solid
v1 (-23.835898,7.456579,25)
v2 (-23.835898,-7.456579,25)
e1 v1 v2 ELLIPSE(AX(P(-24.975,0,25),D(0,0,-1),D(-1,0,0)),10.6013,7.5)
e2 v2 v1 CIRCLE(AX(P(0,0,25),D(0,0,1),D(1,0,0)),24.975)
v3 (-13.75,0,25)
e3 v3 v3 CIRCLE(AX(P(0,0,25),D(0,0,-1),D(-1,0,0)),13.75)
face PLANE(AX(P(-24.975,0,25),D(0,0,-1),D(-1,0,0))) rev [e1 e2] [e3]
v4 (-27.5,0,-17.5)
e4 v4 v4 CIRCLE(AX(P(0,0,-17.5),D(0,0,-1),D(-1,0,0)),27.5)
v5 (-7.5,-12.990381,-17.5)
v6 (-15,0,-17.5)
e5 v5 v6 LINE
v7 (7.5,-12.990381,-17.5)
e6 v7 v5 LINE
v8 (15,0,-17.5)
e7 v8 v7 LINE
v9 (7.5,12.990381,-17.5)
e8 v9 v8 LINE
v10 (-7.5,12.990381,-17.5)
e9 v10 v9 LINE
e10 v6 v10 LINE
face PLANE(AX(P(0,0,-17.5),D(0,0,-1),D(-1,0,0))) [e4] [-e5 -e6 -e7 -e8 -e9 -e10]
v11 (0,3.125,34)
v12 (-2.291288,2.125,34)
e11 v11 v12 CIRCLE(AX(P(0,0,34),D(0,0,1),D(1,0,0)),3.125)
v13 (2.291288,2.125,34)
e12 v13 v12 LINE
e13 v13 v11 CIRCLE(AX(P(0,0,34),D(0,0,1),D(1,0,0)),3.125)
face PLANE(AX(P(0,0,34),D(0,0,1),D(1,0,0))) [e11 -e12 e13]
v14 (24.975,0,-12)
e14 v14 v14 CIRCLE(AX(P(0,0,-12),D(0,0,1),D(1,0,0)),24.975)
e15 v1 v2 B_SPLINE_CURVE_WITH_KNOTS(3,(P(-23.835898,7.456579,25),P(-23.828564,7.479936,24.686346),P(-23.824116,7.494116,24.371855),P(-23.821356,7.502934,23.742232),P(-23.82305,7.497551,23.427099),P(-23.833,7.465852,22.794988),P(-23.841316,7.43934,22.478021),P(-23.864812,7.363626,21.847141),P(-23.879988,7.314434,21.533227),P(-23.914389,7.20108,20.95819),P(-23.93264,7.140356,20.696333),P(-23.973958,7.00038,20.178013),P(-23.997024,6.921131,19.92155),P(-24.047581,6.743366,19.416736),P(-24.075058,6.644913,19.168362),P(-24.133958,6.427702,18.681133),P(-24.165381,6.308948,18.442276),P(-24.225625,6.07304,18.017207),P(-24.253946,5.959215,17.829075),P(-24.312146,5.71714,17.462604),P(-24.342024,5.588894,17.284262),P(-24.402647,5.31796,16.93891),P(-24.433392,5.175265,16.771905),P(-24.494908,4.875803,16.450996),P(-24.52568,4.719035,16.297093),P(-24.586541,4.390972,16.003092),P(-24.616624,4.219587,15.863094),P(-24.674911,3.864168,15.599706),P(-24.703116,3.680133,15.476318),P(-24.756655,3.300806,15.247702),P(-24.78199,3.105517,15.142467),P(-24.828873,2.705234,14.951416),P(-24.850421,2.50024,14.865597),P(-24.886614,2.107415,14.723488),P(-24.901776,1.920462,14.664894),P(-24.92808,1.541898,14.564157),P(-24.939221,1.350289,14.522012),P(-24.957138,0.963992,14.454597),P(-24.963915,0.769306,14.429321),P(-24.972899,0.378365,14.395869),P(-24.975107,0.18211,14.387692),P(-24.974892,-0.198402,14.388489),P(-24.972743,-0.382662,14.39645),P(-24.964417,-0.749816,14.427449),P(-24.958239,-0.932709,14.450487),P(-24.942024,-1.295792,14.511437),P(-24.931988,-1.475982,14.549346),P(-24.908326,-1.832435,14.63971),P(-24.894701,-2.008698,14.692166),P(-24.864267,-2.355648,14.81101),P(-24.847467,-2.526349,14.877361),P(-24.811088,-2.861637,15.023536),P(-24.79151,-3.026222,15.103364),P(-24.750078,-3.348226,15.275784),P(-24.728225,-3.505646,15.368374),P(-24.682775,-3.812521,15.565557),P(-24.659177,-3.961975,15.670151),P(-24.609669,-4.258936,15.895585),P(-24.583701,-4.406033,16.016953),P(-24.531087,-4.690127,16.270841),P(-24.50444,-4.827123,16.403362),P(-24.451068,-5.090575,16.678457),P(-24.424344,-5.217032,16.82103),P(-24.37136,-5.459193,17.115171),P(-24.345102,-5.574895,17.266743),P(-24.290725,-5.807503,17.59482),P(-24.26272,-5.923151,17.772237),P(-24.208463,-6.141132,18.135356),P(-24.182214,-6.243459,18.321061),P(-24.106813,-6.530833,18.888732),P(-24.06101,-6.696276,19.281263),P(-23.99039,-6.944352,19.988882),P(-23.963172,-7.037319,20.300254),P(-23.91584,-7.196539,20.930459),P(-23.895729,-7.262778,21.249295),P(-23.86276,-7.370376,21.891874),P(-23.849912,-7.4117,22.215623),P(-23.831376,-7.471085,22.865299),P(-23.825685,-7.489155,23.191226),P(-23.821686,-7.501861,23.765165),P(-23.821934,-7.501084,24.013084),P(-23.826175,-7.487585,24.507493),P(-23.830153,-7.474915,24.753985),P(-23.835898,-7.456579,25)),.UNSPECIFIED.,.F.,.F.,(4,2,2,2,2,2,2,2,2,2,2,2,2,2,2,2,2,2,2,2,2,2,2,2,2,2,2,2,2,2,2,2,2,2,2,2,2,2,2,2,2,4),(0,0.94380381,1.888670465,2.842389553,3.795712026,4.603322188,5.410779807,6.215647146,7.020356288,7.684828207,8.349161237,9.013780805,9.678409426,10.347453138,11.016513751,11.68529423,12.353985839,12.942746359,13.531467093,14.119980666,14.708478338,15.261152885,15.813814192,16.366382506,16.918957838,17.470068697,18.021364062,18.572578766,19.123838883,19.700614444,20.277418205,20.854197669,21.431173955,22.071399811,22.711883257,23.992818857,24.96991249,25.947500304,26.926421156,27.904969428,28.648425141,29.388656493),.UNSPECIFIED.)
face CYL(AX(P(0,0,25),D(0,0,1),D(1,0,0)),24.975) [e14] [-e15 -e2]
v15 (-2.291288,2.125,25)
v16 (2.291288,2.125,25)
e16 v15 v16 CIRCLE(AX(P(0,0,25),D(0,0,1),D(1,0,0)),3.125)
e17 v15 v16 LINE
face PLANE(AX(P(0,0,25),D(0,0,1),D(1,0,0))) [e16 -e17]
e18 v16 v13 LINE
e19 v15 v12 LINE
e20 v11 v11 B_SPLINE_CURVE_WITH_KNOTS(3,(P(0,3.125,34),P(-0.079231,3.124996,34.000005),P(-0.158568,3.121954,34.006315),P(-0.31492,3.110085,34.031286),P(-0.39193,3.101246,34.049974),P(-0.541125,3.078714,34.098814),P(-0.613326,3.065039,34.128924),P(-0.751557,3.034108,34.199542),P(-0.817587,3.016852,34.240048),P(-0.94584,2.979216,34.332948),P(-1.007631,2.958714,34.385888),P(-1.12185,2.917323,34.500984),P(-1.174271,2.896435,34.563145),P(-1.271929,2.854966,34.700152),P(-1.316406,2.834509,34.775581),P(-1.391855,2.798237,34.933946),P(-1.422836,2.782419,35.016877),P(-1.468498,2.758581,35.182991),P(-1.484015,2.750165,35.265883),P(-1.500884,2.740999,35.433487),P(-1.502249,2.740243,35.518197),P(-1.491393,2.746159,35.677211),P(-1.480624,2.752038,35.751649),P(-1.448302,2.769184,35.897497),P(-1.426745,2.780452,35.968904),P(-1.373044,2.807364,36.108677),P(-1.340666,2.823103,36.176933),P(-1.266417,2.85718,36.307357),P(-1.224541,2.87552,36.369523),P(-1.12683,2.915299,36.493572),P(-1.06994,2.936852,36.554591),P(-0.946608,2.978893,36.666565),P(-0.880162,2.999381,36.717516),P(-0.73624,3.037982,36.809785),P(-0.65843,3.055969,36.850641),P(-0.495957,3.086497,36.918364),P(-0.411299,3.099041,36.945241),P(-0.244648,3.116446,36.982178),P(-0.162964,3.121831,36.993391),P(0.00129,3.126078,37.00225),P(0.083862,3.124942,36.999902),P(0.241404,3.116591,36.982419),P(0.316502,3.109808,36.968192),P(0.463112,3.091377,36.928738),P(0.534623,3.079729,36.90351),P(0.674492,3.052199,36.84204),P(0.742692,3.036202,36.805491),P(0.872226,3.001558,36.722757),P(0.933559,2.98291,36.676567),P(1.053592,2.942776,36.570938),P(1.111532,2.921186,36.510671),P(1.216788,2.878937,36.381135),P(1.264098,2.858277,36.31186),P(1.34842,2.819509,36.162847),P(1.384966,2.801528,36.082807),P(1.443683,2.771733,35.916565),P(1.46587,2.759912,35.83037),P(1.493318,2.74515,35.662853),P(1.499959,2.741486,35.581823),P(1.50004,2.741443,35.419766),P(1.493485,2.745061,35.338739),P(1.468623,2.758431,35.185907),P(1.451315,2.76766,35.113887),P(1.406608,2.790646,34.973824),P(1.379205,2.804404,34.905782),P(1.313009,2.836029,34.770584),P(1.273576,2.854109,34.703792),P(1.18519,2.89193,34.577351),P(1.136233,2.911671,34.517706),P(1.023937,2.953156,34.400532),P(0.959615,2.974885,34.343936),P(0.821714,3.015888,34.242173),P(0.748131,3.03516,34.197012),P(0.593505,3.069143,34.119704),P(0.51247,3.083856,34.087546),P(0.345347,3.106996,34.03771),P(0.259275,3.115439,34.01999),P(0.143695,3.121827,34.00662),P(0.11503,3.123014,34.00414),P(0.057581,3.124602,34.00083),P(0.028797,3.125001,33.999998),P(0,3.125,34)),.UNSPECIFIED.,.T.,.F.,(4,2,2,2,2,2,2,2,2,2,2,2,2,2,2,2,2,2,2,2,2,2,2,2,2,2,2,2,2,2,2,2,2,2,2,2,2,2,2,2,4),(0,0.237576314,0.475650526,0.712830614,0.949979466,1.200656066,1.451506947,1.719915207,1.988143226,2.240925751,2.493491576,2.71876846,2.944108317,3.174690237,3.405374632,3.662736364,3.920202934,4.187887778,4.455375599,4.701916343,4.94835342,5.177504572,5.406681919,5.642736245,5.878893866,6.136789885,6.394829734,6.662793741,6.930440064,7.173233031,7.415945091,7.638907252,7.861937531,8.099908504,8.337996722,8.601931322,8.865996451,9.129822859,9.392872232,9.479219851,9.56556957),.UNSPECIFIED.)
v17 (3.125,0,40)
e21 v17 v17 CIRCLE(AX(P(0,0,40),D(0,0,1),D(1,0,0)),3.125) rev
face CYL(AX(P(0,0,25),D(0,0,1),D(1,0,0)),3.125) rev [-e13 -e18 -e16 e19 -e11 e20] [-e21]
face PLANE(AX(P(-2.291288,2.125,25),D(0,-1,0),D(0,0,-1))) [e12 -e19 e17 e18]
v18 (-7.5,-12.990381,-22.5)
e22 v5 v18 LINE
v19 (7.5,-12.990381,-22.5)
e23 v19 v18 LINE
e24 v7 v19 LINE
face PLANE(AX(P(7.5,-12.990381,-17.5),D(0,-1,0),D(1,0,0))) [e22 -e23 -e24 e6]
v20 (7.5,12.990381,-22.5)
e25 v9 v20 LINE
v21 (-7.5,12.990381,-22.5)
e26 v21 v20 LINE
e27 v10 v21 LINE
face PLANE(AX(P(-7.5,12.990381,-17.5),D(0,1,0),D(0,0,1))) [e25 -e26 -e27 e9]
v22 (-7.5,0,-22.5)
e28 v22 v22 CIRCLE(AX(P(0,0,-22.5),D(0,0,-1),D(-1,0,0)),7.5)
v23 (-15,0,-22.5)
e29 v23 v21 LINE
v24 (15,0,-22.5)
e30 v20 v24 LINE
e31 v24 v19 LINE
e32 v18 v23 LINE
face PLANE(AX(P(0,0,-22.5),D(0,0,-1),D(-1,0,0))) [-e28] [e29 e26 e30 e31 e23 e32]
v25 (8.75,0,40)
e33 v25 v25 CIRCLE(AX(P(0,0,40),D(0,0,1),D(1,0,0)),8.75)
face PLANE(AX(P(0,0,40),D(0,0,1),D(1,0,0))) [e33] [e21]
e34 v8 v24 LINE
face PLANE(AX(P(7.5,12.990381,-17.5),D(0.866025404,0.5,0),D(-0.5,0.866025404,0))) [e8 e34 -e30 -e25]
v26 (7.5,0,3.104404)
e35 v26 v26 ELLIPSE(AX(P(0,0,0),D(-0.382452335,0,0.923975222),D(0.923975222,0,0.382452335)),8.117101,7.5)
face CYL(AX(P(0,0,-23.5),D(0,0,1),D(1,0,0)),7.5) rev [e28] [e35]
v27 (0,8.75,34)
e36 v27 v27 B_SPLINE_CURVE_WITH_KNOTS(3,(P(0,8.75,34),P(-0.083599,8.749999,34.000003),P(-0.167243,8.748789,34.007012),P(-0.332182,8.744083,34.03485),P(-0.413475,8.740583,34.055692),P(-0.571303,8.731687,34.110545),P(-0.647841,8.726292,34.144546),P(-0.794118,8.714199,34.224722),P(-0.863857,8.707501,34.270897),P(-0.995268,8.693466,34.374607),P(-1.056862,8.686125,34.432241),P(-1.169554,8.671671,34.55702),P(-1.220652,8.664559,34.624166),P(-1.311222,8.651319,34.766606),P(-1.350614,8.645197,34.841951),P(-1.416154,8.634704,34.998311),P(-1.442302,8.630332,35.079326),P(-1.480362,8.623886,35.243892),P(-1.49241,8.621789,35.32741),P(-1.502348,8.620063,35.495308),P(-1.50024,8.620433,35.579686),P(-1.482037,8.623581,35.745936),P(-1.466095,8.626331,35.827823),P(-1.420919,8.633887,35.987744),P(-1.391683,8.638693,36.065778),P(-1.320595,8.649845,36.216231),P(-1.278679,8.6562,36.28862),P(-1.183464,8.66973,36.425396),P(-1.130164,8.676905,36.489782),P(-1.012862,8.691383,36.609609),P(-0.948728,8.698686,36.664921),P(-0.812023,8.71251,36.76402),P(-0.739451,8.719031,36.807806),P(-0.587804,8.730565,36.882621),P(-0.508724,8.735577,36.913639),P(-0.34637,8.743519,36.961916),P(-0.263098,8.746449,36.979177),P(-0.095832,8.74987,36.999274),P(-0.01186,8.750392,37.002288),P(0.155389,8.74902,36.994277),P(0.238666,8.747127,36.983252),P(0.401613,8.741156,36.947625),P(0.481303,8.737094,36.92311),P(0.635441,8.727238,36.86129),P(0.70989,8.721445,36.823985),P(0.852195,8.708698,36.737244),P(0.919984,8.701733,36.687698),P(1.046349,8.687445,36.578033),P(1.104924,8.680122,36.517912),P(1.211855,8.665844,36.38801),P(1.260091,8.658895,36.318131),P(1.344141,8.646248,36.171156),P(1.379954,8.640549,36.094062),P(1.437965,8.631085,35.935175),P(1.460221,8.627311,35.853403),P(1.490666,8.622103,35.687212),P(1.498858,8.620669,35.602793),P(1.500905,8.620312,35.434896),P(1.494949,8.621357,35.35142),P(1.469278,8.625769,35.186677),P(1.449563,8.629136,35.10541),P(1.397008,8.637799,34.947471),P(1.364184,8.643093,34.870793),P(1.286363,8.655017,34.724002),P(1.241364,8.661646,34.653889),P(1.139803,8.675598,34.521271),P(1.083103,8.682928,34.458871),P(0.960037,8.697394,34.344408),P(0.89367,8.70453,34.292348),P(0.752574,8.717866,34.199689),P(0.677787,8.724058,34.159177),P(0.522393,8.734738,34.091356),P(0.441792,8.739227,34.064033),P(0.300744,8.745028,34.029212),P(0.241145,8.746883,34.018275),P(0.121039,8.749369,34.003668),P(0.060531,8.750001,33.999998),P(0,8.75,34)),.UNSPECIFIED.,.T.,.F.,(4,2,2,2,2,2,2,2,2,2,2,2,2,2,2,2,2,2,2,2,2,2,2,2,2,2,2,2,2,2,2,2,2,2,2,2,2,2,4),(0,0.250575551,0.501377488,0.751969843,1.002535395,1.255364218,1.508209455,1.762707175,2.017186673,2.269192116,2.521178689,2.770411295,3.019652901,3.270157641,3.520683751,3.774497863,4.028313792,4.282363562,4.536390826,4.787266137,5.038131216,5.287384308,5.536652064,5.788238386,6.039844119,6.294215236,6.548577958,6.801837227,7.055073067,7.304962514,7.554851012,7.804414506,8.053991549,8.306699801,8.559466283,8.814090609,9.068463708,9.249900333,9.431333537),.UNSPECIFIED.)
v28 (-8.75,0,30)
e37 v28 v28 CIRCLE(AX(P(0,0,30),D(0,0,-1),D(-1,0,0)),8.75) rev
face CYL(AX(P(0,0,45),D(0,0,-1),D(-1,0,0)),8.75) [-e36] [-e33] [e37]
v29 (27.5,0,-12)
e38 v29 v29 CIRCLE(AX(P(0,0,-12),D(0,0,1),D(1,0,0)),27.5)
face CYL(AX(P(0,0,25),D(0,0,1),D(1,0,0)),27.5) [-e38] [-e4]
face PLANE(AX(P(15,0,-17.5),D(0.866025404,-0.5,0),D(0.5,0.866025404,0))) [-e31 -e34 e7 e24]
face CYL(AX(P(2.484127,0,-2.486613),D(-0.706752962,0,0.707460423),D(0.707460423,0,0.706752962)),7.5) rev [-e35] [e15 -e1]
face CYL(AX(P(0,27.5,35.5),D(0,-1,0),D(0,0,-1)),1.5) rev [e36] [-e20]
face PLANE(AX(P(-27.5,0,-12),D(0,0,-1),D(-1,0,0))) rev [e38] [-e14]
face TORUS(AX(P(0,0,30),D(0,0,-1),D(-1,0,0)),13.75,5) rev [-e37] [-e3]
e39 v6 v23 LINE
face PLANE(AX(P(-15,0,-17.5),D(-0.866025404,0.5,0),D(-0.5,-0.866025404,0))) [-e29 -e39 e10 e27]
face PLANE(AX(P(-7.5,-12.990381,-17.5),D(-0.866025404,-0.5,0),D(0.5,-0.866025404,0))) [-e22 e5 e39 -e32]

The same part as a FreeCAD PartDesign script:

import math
import FreeCAD as App
import Part
import Sketcher
from FreeCAD import Vector
Q = App.Units.Quantity


def edges_at(feature, points):
    """Names of the edges that pass closest to the given points."""
    edges = feature.Shape.Edges
    near = lambda p: min(range(len(edges)), key=lambda i: edges[i].distToShape(Part.Vertex(*p))[0])
    return sorted({f"Edge{near(p) + 1}" for p in points})

doc = App.newDocument("Part")
body = doc.addObject("PartDesign::Body", "Body")

sketch1 = body.newObject("Sketcher::SketchObject", "Sketch")
sketch1.AttachmentSupport = (doc.getObject("XZ_Plane"), [""])
sketch1.MapMode = "FlatFace"
sketch1.addGeometry([
    Part.LineSegment(Vector(-27.5, -25, 0), Vector(-27.5, -12, 0)),
    Part.LineSegment(Vector(-27.5, -12, 0), Vector(-24.975, -12, 0)),
    Part.LineSegment(Vector(-24.975, -12, 0), Vector(-24.975, 25, 0)),
    Part.LineSegment(Vector(-24.975, 25, 0), Vector(0, 25, 0)),
    Part.LineSegment(Vector(0, 25, 0), Vector(0, -25, 0)),
    Part.LineSegment(Vector(0, -25, 0), Vector(-27.5, -25, 0)),
], False)
sketch1.addConstraint([
    Sketcher.Constraint("Coincident", 0, 2, 1, 1),
    Sketcher.Constraint("Coincident", 1, 2, 2, 1),
    Sketcher.Constraint("Coincident", 2, 2, 3, 1),
    Sketcher.Constraint("Coincident", 3, 2, 4, 1),
    Sketcher.Constraint("Coincident", 4, 2, 5, 1),
    Sketcher.Constraint("Coincident", 5, 2, 0, 1),
    Sketcher.Constraint("Vertical", 0),
    Sketcher.Constraint("Horizontal", 1),
    Sketcher.Constraint("Vertical", 2),
    Sketcher.Constraint("Horizontal", 3),
    Sketcher.Constraint("Vertical", 4),
    Sketcher.Constraint("Horizontal", 5),
    Sketcher.Constraint("Symmetric", 3, 2, 4, 2, -1, 1),
    Sketcher.Constraint("DistanceY", 0, 1, 0, 2, Q("13 mm")),
    Sketcher.Constraint("DistanceY", 2, 1, 2, 2, Q("37 mm")),
    Sketcher.Constraint("DistanceX", 5, 2, 5, 1, Q("27.5 mm")),
    Sketcher.Constraint("DistanceX", 1, 1, 1, 2, Q("2.525 mm")),
])
revolution = body.newObject("PartDesign::Revolution", "Revolution")
revolution.Profile = sketch1
revolution.ReferenceAxis = (sketch1, ["V_Axis"])
revolution.Angle = 360

sketch2 = body.newObject("Sketcher::SketchObject", "Sketch001")
sketch2.AttachmentSupport = (doc.getObject("XY_Plane"), [""])
sketch2.MapMode = "FlatFace"
sketch2.AttachmentOffset = App.Placement(Vector(0, 0, -25), App.Rotation())
sketch2.addGeometry([
    Part.LineSegment(Vector(37.747, 37.747, 0), Vector(37.747, -37.747, 0)),
    Part.LineSegment(Vector(37.747, -37.747, 0), Vector(-37.747, -37.747, 0)),
    Part.LineSegment(Vector(-37.747, -37.747, 0), Vector(-37.747, 37.747, 0)),
    Part.LineSegment(Vector(-37.747, 37.747, 0), Vector(37.747, 37.747, 0)),
    Part.LineSegment(Vector(-7.5, 12.990381, 0), Vector(-15, 0, 0)),
    Part.LineSegment(Vector(-15, 0, 0), Vector(-7.5, -12.990381, 0)),
    Part.LineSegment(Vector(-7.5, -12.990381, 0), Vector(7.5, -12.990381, 0)),
    Part.LineSegment(Vector(7.5, -12.990381, 0), Vector(15, 0, 0)),
    Part.LineSegment(Vector(15, 0, 0), Vector(7.5, 12.990381, 0)),
    Part.LineSegment(Vector(7.5, 12.990381, 0), Vector(-7.5, 12.990381, 0)),
], False)
sketch2.addConstraint([
    Sketcher.Constraint("Coincident", 0, 2, 1, 1),
    Sketcher.Constraint("Coincident", 1, 2, 2, 1),
    Sketcher.Constraint("Coincident", 2, 2, 3, 1),
    Sketcher.Constraint("Coincident", 3, 2, 0, 1),
    Sketcher.Constraint("Coincident", 4, 2, 5, 1),
    Sketcher.Constraint("Coincident", 5, 2, 6, 1),
    Sketcher.Constraint("Coincident", 6, 2, 7, 1),
    Sketcher.Constraint("Coincident", 7, 2, 8, 1),
    Sketcher.Constraint("Coincident", 8, 2, 9, 1),
    Sketcher.Constraint("Coincident", 9, 2, 4, 1),
    Sketcher.Constraint("Vertical", 0),
    Sketcher.Constraint("Horizontal", 1),
    Sketcher.Constraint("Vertical", 2),
    Sketcher.Constraint("Horizontal", 3),
    Sketcher.Constraint("Horizontal", 6),
    Sketcher.Constraint("Horizontal", 9),
    Sketcher.Constraint("Symmetric", 0, 2, 2, 2, -1, 1),
    Sketcher.Constraint("Symmetric", 4, 2, 7, 2, -1, 1),
    Sketcher.Constraint("Symmetric", 5, 2, 8, 2, -1, 1),
    Sketcher.Constraint("PointOnObject", 4, 2, -1),
    Sketcher.Constraint("Parallel", 4, 7),
    Sketcher.Constraint("Vertical", 6, 2, 8, 2),
    Sketcher.Constraint("Equal", 3, 0),
    Sketcher.Constraint("DistanceX", 6, 1, 6, 2, Q("15 mm")),
    Sketcher.Constraint("Angle", 4, Q("-120 deg")),
    Sketcher.Constraint("Distance", 4, Q("15 mm")),
    Sketcher.Constraint("DistanceX", 1, 2, 1, 1, Q("75.494 mm")),
])
pocket1 = body.newObject("PartDesign::Pocket", "Pocket")
pocket1.Profile = sketch2
pocket1.Length = 7.5
pocket1.Reversed = True

sketch3 = body.newObject("Sketcher::SketchObject", "Sketch002")
sketch3.AttachmentSupport = (doc.getObject("XY_Plane"), [""])
sketch3.MapMode = "FlatFace"
sketch3.AttachmentOffset = App.Placement(Vector(0, 0, 25), App.Rotation())
sketch3.addGeometry(Part.Circle(Vector(0, 0, 0), Vector(0, 0, 1), 8.75), False)
sketch3.addConstraint([
    Sketcher.Constraint("Coincident", 0, 3, -1, 1),
    Sketcher.Constraint("Diameter", 0, Q("17.5 mm")),
])
pad1 = body.newObject("PartDesign::Pad", "Pad")
pad1.Profile = sketch3
pad1.Length = 20
doc.recompute()

fillet = body.newObject("PartDesign::Fillet", "Fillet")
fillet.Base = (pad1, edges_at(pad1, [(-8.75, 0, 25)]))
fillet.Radius = 5

sketch4 = body.newObject("Sketcher::SketchObject", "Sketch003")
sketch4.AttachmentSupport = (doc.getObject("XY_Plane"), [""])
sketch4.MapMode = "FlatFace"
sketch4.AttachmentOffset = App.Placement(Vector(0, 0, 45), App.Rotation())
sketch4.addGeometry([
    Part.LineSegment(Vector(2.291288, 2.125, 0), Vector(-2.291288, 2.125, 0)),
    Part.ArcOfCircle(Part.Circle(Vector(0, 0, 0), Vector(0, 0, 1), 3.125), math.radians(137.156357), math.radians(402.843643)),
], False)
sketch4.addConstraint([
    Sketcher.Constraint("Coincident", 0, 1, 1, 2),
    Sketcher.Constraint("Coincident", 1, 1, 0, 2),
    Sketcher.Constraint("Horizontal", 0),
    Sketcher.Constraint("Coincident", 1, 3, -1, 1),
    Sketcher.Constraint("Radius", 1, Q("3.125 mm")),
    Sketcher.Constraint("DistanceY", -1, 1, 0, 1, Q("2.125 mm")),
])
pocket2 = body.newObject("PartDesign::Pocket", "Pocket001")
pocket2.Profile = sketch4
pocket2.Length = 20

sketch5 = body.newObject("Sketcher::SketchObject", "Sketch004")
sketch5.AttachmentSupport = (doc.getObject("XZ_Plane"), [""])
sketch5.MapMode = "FlatFace"
sketch5.addGeometry(Part.Circle(Vector(0, 35.5, 0), Vector(0, 0, 1), 1.5), False)
sketch5.addConstraint([
    Sketcher.Constraint("PointOnObject", 0, 3, -2),
    Sketcher.Constraint("Diameter", 0, Q("3 mm")),
    Sketcher.Constraint("DistanceY", -1, 1, 0, 3, Q("35.5 mm")),
])
pocket3 = body.newObject("PartDesign::Pocket", "Pocket002")
pocket3.Profile = sketch5
pocket3.Type = "ThroughAll"

sketch6 = body.newObject("Sketcher::SketchObject", "Sketch005")
sketch6.AttachmentSupport = (doc.getObject("XY_Plane"), [""])
sketch6.MapMode = "FlatFace"
sketch6.AttachmentOffset = App.Placement(Vector(0, 0, 45), App.Rotation())
sketch6.addGeometry(Part.Circle(Vector(0, 0, 0), Vector(0, 0, 1), 3.125), False)
sketch6.addConstraint([
    Sketcher.Constraint("Coincident", 0, 3, -1, 1),
    Sketcher.Constraint("Diameter", 0, Q("6.25 mm")),
])
pocket4 = body.newObject("PartDesign::Pocket", "Pocket003")
pocket4.Profile = sketch6
pocket4.Length = 11

sketch7 = body.newObject("Sketcher::SketchObject", "Sketch006")
sketch7.AttachmentSupport = (doc.getObject("XY_Plane"), [""])
sketch7.MapMode = "FlatFace"
sketch7.AttachmentOffset = App.Placement(Vector(0, 0, 40), App.Rotation())
sketch7.addGeometry(Part.Circle(Vector(0, 0, 0), Vector(0, 0, 1), 8.75), False)
sketch7.addConstraint([
    Sketcher.Constraint("Coincident", 0, 3, -1, 1),
    Sketcher.Constraint("Diameter", 0, Q("17.5 mm")),
])
pocket5 = body.newObject("PartDesign::Pocket", "Pocket004")
pocket5.Profile = sketch7
pocket5.Length = 5
pocket5.Reversed = True

sketch8 = body.newObject("Sketcher::SketchObject", "Sketch007")
sketch8.AttachmentSupport = (doc.getObject("XY_Plane"), [""])
sketch8.MapMode = "FlatFace"
sketch8.AttachmentOffset = App.Placement(Vector(0, 0, -25), App.Rotation())
sketch8.addGeometry([
    Part.LineSegment(Vector(-7.5, -12.990381, 0), Vector(-15, 0, 0)),
    Part.LineSegment(Vector(-15, 0, 0), Vector(-7.5, 12.990381, 0)),
    Part.LineSegment(Vector(-7.5, 12.990381, 0), Vector(7.5, 12.990381, 0)),
    Part.LineSegment(Vector(7.5, 12.990381, 0), Vector(15, 0, 0)),
    Part.LineSegment(Vector(15, 0, 0), Vector(7.5, -12.990381, 0)),
    Part.LineSegment(Vector(7.5, -12.990381, 0), Vector(-7.5, -12.990381, 0)),
], False)
sketch8.addConstraint([
    Sketcher.Constraint("Coincident", 0, 2, 1, 1),
    Sketcher.Constraint("Coincident", 1, 2, 2, 1),
    Sketcher.Constraint("Coincident", 2, 2, 3, 1),
    Sketcher.Constraint("Coincident", 3, 2, 4, 1),
    Sketcher.Constraint("Coincident", 4, 2, 5, 1),
    Sketcher.Constraint("Coincident", 5, 2, 0, 1),
    Sketcher.Constraint("Horizontal", 2),
    Sketcher.Constraint("Horizontal", 5),
    Sketcher.Constraint("Symmetric", 0, 2, 3, 2, -1, 1),
    Sketcher.Constraint("Symmetric", 1, 2, 4, 2, -1, 1),
    Sketcher.Constraint("PointOnObject", 0, 2, -1),
    Sketcher.Constraint("Parallel", 0, 3),
    Sketcher.Constraint("Vertical", 2, 2, 4, 2),
    Sketcher.Constraint("DistanceX", 2, 1, 2, 2, Q("15 mm")),
    Sketcher.Constraint("Angle", 0, Q("120 deg")),
    Sketcher.Constraint("Distance", 0, Q("15 mm")),
])
pocket6 = body.newObject("PartDesign::Pocket", "Pocket005")
pocket6.Profile = sketch8
pocket6.Length = 2.5
pocket6.Reversed = True

sketch9 = body.newObject("Sketcher::SketchObject", "Sketch008")
sketch9.AttachmentSupport = (doc.getObject("XY_Plane"), [""])
sketch9.MapMode = "FlatFace"
sketch9.AttachmentOffset = App.Placement(Vector(0, 0, -22.5), App.Rotation())
sketch9.addGeometry(Part.Circle(Vector(0, 0, 0), Vector(0, 0, 1), 7.5), False)
sketch9.addConstraint([
    Sketcher.Constraint("Coincident", 0, 3, -1, 1),
    Sketcher.Constraint("Diameter", 0, Q("15 mm")),
])

sketch10 = body.newObject("Sketcher::SketchObject", "Sketch009")
sketch10.AttachmentSupport = (doc.getObject("XZ_Plane"), [""])
sketch10.MapMode = "FlatFace"
sketch10.addGeometry([
    Part.LineSegment(Vector(0, -22.5, 0), Vector(0, 0, 0)),
    Part.LineSegment(Vector(0, 0, 0), Vector(-24.975, 25, 0)),
], False)
sketch10.addConstraint([
    Sketcher.Constraint("Coincident", 0, 2, 1, 1),
    Sketcher.Constraint("Vertical", 0),
    Sketcher.Constraint("Coincident", 0, 2, -1, 1),
    Sketcher.Constraint("DistanceY", 0, 1, 0, 2, Q("22.5 mm")),
    Sketcher.Constraint("DistanceY", -1, 1, 1, 2, Q("25 mm")),
    Sketcher.Constraint("DistanceX", 1, 2, -1, 1, Q("24.975 mm")),
])
doc.recompute()

subtractivepipe = body.newObject("PartDesign::SubtractivePipe", "SubtractivePipe")
subtractivepipe.Profile = sketch9
subtractivepipe.Spine = (sketch10, ["Edge1", "Edge2"])
subtractivepipe.Transition = "Right corner"

doc.recompute()
